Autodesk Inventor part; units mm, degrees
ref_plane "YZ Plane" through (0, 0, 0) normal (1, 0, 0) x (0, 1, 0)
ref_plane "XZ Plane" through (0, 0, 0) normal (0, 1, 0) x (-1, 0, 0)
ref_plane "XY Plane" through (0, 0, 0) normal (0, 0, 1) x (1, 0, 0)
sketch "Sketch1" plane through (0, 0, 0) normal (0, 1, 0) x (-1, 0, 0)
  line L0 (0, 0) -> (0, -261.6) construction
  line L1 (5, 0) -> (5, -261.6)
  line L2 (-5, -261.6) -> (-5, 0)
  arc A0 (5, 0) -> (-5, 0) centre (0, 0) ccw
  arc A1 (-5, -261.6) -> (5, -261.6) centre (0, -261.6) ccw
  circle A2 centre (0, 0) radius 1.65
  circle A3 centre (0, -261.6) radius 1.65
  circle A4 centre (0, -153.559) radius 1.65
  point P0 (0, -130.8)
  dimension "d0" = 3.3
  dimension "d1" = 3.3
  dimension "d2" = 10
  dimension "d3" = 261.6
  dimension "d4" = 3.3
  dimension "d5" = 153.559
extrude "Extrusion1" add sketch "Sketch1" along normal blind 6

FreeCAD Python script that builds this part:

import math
import FreeCAD as App
import Part
import Sketcher

doc = App.newDocument("Part")
params = doc.addObject("Spreadsheet::Sheet", "Params")
for row, (alias, value) in enumerate([
    ("sketch1_radius", "5 mm"),
    ("sketch1_diameter", "3.3 mm"),
    ("sketch1_height", "261.6 mm"),
    ("pad1_length", "6 mm"),
], start=1):
    params.set(f"A{row}", alias)
    params.set(f"B{row}", "=" + value)
    params.setAlias(f"B{row}", alias)

body = doc.addObject("PartDesign::Body", "Body")

# Sketch on XZ plane
sketch1 = body.newObject("Sketcher::SketchObject", "Sketch")
sketch1.AttachmentSupport = (doc.getObject("XZ_Plane"), [""])
sketch1.MapMode = "FlatFace"
sketch1.addGeometry([
    Part.LineSegment(App.Vector(-5, -261.6, 0), App.Vector(-5, 0, 0)),  # 0
    Part.ArcOfCircle(Part.Circle(App.Vector(0, 0, 0), App.Vector(0, 0, 1), 5), math.radians(0), math.radians(180)),  # 1
    Part.LineSegment(App.Vector(5, 0, 0), App.Vector(5, -261.6, 0)),  # 2
    Part.ArcOfCircle(Part.Circle(App.Vector(0, -261.6, 0), App.Vector(0, 0, 1), 5), math.radians(180), math.radians(360)),  # 3
    Part.Circle(App.Vector(0, -261.6, 0), App.Vector(0, 0, 1), 1.65),  # 4
    Part.Circle(App.Vector(0, -153.559, 0), App.Vector(0, 0, 1), 1.65),  # 5
    Part.Circle(App.Vector(0, 0, 0), App.Vector(0, 0, 1), 1.65),  # 6
], False)
sketch1.addConstraint([
    Sketcher.Constraint("Tangent", 0, 2, 1, 2),
    Sketcher.Constraint("Tangent", 1, 1, 2, 1),
    Sketcher.Constraint("Tangent", 2, 2, 3, 2),
    Sketcher.Constraint("Tangent", 3, 1, 0, 1),
    Sketcher.Constraint("Vertical", 0),
    Sketcher.Constraint("Vertical", 2),
    Sketcher.Constraint("Coincident", 1, 3, -1, 1),
    Sketcher.Constraint("Coincident", 6, 3, -1, 1),
    Sketcher.Constraint("Coincident", 4, 3, 3, 3),
    Sketcher.Constraint("Equal", 4, 5),
    Sketcher.Constraint("Equal", 5, 6),
    Sketcher.Constraint("PointOnObject", 5, 3, -2),
    Sketcher.Constraint("Radius", 1, 5.0),
    Sketcher.Constraint("Diameter", 4, 3.3),
    Sketcher.Constraint("DistanceY", 0, 1, 0, 2, 261.6),
    Sketcher.Constraint("DistanceY", 5, 3, -1, 1, 153.559),
])
sketch1.setExpression("Constraints[12]", "Params.sketch1_radius")
sketch1.setExpression("Constraints[13]", "Params.sketch1_diameter")
sketch1.setExpression("Constraints[14]", "Params.sketch1_height")
pad1 = body.newObject("PartDesign::Pad", "Pad")
pad1.Profile = sketch1
pad1.setExpression("Length", "Params.pad1_length")
pad1.Reversed = True

doc.recompute()
